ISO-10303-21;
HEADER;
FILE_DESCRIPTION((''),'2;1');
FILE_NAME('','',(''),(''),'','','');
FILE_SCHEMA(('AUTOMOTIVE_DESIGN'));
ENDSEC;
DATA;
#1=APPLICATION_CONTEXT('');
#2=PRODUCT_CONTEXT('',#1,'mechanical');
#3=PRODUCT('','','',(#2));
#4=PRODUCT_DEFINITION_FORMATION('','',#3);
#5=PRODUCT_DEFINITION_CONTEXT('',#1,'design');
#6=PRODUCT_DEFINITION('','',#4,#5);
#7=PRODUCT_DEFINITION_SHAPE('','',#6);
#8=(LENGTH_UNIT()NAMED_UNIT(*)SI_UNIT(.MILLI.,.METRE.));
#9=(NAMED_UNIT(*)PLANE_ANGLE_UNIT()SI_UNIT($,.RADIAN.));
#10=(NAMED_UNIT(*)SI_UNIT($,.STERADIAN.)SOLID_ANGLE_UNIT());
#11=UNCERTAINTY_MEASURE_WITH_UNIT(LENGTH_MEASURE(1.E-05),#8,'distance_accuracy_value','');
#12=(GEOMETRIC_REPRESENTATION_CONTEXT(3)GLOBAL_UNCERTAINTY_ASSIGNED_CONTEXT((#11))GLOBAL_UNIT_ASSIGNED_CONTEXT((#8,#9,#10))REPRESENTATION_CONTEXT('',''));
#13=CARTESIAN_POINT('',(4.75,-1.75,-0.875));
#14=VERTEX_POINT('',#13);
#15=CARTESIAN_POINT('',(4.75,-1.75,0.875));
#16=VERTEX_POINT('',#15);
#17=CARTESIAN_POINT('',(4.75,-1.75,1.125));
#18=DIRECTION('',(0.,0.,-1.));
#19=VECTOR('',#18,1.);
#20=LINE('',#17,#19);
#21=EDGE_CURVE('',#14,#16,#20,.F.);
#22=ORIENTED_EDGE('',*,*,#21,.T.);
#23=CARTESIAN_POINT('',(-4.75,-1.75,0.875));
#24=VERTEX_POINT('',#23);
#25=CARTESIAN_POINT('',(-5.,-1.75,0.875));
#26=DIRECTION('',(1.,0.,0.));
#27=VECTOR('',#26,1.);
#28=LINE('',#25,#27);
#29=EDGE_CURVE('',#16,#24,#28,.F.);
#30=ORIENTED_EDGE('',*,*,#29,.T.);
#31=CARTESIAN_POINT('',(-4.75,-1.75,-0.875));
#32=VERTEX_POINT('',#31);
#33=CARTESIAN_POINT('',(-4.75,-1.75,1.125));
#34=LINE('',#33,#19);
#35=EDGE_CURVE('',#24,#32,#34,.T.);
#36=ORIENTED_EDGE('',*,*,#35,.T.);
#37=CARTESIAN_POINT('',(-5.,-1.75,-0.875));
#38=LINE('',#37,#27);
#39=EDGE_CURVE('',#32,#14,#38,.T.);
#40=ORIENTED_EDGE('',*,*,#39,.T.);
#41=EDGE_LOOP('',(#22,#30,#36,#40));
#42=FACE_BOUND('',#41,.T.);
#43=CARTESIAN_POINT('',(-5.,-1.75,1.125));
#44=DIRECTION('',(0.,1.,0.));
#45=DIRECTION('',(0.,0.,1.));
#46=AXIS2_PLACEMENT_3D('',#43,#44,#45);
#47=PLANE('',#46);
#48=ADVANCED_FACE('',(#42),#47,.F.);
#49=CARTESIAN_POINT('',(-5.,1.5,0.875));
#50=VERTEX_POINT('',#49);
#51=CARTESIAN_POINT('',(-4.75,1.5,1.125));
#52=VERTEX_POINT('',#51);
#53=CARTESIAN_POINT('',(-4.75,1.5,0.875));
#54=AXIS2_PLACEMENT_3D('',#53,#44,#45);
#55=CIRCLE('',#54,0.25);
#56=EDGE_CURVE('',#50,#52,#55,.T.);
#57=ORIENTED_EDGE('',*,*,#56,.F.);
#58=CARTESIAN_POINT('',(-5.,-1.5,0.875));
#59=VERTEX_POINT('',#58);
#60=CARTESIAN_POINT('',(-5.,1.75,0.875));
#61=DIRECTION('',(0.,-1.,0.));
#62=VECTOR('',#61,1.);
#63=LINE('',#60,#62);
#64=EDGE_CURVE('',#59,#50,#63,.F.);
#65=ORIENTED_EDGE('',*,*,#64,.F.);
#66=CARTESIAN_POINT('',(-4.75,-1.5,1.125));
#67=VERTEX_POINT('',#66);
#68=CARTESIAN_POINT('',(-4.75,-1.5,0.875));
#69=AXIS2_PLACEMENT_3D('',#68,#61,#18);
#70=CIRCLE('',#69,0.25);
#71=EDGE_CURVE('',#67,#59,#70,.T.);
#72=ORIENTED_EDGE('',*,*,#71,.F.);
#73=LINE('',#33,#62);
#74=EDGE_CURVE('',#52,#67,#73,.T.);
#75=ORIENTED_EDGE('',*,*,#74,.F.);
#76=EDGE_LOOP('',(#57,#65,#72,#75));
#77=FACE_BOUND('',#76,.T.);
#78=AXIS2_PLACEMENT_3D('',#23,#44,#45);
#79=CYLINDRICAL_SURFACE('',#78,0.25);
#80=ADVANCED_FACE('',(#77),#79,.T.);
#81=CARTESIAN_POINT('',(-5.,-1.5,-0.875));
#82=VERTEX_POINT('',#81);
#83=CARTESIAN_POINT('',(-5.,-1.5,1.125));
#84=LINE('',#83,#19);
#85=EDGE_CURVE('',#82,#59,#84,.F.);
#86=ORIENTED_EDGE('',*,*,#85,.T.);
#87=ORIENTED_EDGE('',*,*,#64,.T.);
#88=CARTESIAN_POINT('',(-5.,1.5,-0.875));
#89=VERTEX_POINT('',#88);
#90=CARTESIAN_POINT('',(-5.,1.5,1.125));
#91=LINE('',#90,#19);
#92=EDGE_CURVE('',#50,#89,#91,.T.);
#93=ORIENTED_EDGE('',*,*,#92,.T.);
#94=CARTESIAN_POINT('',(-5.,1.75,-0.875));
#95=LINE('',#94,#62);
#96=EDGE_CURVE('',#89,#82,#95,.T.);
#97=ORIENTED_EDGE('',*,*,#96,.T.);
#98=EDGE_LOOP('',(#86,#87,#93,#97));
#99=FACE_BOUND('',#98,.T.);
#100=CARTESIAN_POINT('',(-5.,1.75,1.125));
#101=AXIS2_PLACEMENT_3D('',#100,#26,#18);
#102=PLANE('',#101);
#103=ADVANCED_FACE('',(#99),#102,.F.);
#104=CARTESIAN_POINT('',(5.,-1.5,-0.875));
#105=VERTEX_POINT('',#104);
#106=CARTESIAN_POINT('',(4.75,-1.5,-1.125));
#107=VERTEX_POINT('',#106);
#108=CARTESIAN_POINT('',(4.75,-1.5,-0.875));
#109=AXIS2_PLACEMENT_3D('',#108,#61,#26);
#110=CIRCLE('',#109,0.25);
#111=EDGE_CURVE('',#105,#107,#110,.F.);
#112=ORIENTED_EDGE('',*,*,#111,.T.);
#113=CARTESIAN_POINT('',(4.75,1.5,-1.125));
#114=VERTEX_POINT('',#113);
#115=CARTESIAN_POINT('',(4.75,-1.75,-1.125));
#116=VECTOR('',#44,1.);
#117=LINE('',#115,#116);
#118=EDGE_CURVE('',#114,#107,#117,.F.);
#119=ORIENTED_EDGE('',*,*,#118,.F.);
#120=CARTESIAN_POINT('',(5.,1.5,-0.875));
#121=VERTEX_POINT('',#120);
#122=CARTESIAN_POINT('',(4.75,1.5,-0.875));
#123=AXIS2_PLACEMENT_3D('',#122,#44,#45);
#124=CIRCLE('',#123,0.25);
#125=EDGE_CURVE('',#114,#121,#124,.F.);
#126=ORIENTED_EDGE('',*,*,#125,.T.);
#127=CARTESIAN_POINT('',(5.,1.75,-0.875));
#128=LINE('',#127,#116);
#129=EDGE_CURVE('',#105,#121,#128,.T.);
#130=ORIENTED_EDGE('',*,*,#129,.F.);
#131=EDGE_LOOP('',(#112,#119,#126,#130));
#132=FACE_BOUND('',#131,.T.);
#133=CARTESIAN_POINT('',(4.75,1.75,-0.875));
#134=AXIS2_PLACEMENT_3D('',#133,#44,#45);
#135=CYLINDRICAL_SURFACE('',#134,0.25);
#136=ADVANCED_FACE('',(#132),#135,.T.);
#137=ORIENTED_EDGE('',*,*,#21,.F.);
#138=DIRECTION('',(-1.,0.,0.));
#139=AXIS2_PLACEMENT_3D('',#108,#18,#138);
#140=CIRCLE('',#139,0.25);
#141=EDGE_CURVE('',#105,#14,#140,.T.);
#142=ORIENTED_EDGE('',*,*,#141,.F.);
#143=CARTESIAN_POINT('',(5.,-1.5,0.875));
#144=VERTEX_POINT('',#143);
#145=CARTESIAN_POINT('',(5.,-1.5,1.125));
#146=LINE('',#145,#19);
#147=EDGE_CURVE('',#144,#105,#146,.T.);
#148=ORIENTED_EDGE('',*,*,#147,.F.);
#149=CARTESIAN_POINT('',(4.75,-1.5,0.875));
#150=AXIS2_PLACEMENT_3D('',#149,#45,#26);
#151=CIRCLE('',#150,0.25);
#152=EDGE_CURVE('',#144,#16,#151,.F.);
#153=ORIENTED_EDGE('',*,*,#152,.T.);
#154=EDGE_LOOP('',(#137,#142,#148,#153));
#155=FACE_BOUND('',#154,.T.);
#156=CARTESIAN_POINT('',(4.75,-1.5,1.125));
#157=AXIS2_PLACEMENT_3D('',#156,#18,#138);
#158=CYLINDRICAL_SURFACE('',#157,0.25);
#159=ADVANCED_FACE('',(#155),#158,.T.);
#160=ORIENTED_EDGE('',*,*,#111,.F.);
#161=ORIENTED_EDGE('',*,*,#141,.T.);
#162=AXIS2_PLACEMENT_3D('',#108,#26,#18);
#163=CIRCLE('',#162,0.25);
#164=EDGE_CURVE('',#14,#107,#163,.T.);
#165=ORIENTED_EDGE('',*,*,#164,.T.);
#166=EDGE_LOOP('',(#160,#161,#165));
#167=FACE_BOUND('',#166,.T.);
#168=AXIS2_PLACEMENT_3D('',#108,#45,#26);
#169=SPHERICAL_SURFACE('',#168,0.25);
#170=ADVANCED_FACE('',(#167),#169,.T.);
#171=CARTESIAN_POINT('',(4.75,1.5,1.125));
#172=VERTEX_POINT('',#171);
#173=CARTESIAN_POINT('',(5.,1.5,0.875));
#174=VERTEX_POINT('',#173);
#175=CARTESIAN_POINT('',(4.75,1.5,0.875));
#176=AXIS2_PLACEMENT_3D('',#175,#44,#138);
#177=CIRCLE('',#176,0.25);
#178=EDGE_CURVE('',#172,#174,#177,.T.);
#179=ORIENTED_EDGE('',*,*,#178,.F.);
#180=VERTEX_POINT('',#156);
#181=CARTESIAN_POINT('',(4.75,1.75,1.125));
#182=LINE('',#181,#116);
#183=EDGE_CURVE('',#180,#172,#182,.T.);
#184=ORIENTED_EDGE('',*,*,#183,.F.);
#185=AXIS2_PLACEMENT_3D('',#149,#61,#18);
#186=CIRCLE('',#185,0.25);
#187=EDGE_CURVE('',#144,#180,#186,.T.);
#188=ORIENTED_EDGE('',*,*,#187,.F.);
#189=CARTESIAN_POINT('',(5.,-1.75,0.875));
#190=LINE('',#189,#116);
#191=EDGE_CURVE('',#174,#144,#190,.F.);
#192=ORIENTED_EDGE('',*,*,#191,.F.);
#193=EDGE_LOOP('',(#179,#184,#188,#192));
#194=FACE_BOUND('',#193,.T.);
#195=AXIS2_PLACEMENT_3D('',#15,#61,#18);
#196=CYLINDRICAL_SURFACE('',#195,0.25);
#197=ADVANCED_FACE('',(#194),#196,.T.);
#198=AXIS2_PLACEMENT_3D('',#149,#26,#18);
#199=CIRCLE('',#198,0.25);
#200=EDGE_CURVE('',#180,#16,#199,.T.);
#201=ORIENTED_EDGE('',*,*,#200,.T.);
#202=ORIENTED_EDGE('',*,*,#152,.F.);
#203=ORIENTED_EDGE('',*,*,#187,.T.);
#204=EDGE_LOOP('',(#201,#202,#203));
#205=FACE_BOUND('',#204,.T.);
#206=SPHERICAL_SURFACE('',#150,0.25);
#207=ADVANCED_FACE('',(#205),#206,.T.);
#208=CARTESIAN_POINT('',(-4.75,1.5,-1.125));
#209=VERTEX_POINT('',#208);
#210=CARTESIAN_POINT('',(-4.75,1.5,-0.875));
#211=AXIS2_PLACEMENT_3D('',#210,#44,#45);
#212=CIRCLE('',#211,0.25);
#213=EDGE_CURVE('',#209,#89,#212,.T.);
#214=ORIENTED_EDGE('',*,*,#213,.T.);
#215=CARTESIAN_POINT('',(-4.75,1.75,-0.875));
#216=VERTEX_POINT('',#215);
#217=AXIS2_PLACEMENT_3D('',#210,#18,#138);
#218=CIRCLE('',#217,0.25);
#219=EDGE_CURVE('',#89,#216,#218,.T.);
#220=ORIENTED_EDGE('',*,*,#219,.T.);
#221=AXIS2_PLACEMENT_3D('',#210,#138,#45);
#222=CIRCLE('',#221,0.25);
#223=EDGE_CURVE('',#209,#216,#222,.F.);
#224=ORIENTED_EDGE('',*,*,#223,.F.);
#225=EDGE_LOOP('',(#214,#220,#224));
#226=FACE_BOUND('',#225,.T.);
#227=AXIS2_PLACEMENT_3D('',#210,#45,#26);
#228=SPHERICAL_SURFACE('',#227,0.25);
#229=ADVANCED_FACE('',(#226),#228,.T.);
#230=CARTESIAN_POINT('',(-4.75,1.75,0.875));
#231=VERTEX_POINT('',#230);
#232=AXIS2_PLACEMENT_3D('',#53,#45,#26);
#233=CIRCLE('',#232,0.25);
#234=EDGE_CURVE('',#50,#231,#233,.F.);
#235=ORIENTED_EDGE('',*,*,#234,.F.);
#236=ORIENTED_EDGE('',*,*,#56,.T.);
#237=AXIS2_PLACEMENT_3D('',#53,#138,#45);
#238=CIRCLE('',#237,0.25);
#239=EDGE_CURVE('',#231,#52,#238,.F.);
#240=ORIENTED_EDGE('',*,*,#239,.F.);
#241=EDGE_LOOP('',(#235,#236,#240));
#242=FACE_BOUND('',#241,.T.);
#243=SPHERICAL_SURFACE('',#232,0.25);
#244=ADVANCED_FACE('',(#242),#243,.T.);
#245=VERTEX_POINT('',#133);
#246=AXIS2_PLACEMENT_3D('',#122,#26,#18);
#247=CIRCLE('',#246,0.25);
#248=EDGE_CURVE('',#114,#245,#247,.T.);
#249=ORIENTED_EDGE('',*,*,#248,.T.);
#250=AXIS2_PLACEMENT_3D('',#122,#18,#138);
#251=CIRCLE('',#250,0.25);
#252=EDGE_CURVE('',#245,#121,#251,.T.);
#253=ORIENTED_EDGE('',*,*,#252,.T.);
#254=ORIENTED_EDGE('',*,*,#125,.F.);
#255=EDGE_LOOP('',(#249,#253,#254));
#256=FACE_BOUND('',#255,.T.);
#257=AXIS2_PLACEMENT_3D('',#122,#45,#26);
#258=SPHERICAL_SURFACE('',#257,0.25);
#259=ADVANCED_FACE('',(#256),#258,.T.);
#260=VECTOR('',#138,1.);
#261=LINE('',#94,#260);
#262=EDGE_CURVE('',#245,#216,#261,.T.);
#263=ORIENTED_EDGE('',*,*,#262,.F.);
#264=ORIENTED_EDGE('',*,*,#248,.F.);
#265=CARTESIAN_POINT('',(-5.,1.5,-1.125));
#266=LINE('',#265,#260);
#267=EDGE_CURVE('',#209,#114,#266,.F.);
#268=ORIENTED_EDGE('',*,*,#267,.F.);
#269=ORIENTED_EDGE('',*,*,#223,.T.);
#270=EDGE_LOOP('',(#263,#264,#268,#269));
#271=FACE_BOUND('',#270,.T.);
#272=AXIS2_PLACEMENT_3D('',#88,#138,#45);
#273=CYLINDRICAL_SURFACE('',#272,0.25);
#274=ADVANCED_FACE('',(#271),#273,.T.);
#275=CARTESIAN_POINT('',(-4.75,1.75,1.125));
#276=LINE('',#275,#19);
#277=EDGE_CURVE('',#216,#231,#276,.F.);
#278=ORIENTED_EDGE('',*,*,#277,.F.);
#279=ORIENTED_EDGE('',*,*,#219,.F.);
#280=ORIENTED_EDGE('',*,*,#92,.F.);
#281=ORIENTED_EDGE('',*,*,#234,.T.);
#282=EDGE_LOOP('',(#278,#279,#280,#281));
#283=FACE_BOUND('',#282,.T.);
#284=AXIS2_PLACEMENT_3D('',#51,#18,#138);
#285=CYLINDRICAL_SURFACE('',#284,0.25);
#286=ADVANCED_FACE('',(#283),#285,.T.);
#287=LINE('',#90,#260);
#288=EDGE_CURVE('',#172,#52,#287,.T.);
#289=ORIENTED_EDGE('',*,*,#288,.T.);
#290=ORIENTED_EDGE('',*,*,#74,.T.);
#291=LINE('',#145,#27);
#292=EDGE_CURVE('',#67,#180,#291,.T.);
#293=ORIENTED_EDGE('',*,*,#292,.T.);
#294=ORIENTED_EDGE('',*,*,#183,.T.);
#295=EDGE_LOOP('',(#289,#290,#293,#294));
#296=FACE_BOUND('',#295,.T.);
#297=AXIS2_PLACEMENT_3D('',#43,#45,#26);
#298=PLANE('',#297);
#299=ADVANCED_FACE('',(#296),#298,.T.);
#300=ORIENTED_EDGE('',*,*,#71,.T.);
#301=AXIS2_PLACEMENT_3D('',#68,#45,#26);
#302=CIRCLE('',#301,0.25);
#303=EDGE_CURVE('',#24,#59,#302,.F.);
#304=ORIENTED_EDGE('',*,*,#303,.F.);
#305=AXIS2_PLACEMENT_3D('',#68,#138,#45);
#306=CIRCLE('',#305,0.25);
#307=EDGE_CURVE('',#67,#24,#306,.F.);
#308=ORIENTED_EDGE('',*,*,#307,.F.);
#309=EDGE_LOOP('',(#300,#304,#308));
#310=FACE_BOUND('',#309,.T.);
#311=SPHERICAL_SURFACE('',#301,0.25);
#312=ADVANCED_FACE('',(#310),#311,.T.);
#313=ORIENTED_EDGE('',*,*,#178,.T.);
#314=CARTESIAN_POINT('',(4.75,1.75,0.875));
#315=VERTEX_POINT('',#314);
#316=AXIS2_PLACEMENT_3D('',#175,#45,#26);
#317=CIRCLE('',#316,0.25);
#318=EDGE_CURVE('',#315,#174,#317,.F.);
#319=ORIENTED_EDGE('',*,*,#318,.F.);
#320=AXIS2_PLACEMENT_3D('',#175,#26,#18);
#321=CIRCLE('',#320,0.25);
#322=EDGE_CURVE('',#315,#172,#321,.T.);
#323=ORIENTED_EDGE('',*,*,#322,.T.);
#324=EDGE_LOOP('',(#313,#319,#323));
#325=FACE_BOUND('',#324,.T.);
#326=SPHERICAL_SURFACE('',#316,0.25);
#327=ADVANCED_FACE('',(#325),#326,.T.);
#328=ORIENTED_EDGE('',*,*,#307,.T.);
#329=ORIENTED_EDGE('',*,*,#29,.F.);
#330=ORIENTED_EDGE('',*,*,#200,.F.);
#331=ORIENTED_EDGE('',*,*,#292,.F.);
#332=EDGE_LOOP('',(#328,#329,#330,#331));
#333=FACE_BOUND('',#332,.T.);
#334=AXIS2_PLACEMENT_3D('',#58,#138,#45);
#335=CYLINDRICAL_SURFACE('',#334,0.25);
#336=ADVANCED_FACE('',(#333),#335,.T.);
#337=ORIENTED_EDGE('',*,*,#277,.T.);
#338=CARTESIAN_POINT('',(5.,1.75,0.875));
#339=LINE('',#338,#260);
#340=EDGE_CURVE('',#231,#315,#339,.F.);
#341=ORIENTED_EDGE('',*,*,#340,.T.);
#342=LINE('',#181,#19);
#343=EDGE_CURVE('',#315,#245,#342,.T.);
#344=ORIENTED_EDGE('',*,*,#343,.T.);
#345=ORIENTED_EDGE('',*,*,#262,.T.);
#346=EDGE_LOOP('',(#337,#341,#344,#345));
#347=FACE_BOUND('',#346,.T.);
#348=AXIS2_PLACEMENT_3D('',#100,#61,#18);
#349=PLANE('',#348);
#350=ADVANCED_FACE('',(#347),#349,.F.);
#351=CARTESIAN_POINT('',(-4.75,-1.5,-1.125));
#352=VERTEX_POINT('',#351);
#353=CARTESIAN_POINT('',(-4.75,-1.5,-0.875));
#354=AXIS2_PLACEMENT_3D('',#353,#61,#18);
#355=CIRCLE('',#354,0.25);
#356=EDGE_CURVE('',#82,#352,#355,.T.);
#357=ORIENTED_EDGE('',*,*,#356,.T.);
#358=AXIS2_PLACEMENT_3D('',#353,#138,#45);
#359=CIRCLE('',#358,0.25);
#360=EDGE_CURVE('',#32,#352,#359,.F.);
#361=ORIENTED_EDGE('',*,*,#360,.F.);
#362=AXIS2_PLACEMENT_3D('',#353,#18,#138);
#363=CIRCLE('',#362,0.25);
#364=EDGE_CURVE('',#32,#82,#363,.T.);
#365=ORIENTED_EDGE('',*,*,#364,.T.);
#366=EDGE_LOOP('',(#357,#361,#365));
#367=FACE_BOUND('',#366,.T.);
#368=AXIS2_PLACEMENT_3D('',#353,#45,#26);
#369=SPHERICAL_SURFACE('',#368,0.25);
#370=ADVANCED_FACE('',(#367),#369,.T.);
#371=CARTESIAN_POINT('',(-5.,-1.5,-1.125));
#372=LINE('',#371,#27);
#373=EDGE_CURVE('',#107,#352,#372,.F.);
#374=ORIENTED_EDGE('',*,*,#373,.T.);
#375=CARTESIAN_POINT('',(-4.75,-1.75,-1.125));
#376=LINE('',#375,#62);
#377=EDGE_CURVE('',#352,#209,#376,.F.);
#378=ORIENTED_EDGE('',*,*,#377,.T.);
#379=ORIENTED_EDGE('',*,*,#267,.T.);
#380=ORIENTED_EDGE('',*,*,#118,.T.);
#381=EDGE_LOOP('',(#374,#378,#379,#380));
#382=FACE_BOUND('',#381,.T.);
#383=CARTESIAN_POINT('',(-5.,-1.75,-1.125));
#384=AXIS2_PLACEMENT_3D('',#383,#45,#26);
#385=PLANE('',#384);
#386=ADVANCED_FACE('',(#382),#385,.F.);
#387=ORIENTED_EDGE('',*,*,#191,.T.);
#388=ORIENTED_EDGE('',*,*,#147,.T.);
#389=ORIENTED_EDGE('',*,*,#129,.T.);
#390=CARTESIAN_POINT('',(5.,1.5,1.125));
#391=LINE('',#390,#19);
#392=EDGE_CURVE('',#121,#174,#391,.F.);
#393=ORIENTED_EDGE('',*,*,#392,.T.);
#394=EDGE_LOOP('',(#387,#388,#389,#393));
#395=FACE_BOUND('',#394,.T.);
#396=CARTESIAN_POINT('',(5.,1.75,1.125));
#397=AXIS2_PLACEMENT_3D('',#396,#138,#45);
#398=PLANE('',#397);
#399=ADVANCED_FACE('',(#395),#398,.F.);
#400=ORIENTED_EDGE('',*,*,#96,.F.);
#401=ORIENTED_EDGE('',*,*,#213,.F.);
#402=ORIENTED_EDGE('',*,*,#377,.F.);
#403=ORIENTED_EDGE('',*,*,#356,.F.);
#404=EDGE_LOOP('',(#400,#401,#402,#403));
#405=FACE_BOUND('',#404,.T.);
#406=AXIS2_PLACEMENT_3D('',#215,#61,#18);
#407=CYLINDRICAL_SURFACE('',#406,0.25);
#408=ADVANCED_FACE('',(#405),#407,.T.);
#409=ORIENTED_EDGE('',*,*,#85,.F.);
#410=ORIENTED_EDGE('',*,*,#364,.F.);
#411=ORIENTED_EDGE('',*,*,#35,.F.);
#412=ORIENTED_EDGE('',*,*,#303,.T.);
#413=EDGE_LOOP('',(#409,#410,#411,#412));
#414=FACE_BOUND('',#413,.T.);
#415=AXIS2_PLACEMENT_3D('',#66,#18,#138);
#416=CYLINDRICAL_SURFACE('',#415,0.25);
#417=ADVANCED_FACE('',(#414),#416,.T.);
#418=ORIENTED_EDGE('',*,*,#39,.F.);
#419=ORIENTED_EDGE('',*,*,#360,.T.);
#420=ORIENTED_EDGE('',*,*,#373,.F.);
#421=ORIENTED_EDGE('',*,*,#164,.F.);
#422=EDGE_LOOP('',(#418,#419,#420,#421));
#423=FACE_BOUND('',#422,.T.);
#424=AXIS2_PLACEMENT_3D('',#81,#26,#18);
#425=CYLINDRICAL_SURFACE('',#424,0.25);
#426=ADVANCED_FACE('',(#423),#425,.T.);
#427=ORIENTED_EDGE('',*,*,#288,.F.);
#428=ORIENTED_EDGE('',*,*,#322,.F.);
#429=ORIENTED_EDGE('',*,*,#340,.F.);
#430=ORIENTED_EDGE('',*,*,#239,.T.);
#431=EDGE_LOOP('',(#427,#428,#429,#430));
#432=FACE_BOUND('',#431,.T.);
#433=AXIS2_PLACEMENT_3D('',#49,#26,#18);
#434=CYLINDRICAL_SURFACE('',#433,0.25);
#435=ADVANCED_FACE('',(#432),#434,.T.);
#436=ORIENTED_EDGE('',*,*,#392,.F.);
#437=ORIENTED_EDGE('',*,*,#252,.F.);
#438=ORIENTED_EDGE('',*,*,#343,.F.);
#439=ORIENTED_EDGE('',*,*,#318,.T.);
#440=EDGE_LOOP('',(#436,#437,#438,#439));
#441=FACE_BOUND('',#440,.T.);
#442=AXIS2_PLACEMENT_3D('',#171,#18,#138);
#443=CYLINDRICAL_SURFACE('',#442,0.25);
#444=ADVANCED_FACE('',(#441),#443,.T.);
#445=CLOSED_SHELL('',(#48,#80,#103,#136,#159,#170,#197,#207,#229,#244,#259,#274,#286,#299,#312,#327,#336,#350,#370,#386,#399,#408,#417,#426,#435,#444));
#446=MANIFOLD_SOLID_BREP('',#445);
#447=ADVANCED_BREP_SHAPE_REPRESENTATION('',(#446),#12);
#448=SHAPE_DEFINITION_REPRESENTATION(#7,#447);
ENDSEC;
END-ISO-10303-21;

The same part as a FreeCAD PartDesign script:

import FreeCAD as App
import Part
import Sketcher

doc = App.newDocument("Part")
body = doc.addObject("PartDesign::Body", "Body")

sketch1 = body.newObject("Sketcher::SketchObject", "Sketch")
sketch1.AttachmentSupport = (doc.getObject("XY_Plane"), [""])
sketch1.MapMode = "FlatFace"
sketch1.addGeometry([
    Part.LineSegment(App.Vector(-5, 1.8, 0), App.Vector(-5, -1.8, 0)),
    Part.LineSegment(App.Vector(-5, -1.8, 0), App.Vector(5, -1.8, 0)),
    Part.LineSegment(App.Vector(5, -1.8, 0), App.Vector(5, 1.8, 0)),
    Part.LineSegment(App.Vector(5, 1.8, 0), App.Vector(-5, 1.8, 0)),
], False)
sketch1.addConstraint([
    Sketcher.Constraint("Coincident", 0, 2, 1, 1),
    Sketcher.Constraint("Coincident", 1, 2, 2, 1),
    Sketcher.Constraint("Coincident", 2, 2, 3, 1),
    Sketcher.Constraint("Coincident", 3, 2, 0, 1),
    Sketcher.Constraint("Vertical", 0),
    Sketcher.Constraint("Horizontal", 1),
    Sketcher.Constraint("Vertical", 2),
    Sketcher.Constraint("Horizontal", 3),
    Sketcher.Constraint("Symmetric", 0, 2, 2, 2, -1, 1),
    Sketcher.Constraint("DistanceX", 1, 1, 1, 2, 10.0),
    Sketcher.Constraint("DistanceY", 0, 2, 0, 1, 3.5),
])
pad1 = body.newObject("PartDesign::Pad", "Pad")
pad1.Profile = sketch1
pad1.Length = 2.25
pad1.Midplane = True
doc.recompute()

fillet = body.newObject("PartDesign::Fillet", "Fillet")
fillet.Base = (pad1, ["Edge1"])
fillet.UseAllEdges = True
fillet.Radius = 0.25

doc.recompute()
